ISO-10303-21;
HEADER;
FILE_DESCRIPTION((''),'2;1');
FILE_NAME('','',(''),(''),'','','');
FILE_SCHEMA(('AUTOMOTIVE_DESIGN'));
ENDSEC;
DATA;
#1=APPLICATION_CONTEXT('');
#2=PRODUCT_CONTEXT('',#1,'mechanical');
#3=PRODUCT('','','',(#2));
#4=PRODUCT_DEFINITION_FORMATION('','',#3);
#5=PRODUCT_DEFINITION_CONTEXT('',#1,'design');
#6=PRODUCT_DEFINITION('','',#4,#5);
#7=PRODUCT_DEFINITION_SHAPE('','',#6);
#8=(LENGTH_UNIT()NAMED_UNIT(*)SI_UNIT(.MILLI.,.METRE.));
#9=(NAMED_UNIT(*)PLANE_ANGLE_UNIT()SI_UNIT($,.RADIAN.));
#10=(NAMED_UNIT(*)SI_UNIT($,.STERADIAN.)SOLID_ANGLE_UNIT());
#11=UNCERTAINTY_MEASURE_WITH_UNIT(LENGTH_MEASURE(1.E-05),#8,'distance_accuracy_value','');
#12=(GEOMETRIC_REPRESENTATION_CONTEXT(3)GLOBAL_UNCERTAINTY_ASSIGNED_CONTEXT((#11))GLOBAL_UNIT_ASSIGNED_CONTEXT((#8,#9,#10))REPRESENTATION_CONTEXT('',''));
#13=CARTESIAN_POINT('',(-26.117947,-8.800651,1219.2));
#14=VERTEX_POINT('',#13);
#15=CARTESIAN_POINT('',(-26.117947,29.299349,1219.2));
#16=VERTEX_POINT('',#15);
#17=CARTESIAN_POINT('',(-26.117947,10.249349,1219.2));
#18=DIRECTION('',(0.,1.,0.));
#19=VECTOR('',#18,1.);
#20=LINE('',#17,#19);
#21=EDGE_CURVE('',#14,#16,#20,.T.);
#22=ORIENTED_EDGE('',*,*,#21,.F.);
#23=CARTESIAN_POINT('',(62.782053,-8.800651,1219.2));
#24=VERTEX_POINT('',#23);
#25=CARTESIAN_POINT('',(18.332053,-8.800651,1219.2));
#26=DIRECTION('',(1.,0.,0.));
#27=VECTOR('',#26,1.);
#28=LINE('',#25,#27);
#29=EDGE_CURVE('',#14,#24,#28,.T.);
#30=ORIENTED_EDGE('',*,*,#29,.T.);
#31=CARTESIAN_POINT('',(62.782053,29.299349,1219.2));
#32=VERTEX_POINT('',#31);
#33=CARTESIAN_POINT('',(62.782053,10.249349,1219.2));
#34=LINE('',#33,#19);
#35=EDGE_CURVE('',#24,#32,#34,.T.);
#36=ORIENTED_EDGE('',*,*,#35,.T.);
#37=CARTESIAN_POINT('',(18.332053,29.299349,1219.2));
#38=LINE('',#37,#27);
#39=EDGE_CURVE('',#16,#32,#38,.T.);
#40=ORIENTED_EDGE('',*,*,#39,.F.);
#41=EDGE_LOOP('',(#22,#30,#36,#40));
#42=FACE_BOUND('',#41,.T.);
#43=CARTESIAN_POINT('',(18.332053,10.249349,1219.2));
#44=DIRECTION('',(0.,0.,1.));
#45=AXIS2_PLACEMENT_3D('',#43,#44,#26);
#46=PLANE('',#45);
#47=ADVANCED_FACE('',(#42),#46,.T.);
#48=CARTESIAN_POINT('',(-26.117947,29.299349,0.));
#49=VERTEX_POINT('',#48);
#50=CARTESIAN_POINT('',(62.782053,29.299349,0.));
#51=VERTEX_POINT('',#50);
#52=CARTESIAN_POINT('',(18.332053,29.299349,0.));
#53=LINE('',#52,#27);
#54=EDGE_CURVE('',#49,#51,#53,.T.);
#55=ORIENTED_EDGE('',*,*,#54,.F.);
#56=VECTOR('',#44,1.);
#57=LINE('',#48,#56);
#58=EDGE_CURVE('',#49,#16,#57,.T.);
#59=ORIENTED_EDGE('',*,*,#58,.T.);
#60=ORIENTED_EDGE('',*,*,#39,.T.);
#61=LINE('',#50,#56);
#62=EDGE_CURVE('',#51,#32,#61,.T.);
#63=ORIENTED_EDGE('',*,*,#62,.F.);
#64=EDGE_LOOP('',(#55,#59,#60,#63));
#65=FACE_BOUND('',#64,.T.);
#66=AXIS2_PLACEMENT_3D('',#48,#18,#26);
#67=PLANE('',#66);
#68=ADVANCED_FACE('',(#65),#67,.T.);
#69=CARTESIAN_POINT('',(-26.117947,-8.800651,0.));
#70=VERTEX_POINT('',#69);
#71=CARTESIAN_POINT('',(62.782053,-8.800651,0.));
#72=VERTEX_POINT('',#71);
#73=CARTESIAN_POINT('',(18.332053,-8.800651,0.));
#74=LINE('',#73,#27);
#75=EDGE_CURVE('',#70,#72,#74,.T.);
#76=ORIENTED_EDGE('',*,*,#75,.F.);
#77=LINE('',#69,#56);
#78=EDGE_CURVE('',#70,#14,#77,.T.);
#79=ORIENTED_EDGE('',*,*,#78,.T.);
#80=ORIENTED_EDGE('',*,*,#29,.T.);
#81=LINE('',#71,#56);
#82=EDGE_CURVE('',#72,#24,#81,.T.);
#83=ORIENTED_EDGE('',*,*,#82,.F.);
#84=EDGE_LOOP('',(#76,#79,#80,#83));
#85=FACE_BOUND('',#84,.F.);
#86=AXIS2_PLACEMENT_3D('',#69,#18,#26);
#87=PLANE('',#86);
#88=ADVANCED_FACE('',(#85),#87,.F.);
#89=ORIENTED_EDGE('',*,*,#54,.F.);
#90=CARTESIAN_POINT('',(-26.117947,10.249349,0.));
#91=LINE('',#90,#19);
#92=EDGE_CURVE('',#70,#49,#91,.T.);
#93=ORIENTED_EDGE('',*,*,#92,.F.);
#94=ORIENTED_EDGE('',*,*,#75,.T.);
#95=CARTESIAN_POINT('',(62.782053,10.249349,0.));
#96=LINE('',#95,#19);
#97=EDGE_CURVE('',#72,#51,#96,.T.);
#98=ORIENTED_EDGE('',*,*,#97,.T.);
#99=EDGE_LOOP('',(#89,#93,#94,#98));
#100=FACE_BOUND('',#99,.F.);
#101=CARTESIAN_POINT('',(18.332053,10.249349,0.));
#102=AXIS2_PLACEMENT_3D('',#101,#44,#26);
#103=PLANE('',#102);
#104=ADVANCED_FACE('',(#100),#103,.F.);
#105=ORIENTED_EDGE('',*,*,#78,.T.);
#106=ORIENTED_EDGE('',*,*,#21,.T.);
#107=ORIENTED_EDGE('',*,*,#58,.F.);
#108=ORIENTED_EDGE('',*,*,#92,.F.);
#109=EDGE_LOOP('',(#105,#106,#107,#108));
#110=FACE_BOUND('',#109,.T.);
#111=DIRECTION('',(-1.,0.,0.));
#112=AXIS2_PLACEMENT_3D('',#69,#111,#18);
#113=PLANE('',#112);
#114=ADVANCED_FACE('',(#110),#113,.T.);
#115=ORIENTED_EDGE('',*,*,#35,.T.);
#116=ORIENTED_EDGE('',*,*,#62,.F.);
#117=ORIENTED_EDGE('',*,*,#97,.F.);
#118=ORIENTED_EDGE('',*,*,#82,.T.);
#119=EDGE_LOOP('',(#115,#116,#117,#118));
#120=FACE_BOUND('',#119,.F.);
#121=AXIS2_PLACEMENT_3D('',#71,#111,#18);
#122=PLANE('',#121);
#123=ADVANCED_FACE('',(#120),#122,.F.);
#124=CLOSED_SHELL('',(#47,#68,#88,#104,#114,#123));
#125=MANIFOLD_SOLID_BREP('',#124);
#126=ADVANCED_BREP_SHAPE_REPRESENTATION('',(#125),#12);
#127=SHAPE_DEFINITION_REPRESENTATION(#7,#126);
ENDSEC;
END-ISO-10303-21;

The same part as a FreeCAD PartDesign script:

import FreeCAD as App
import Part
import Sketcher

V = App.Vector
Q = App.Units.Quantity

doc = App.newDocument("Part")
body = doc.addObject("PartDesign::Body", "Body")

sketch1 = body.newObject("Sketcher::SketchObject", "Sketch")
sketch1.AttachmentSupport = (doc.getObject("XY_Plane"), [""])
sketch1.MapMode = "FlatFace"
sketch1.addGeometry(Part.LineSegment(V(-26, 29, 0), V(-26, -9, 0)), False)
sketch1.addGeometry(Part.LineSegment(V(-26, -9, 0), V(63, -9, 0)), False)
sketch1.addGeometry(Part.LineSegment(V(63, -9, 0), V(63, 29, 0)), False)
sketch1.addGeometry(Part.LineSegment(V(63, 29, 0), V(-26, 29, 0)), False)
sketch1.addConstraint(Sketcher.Constraint("Coincident", 0, 2, 1, 1))
sketch1.addConstraint(Sketcher.Constraint("Coincident", 1, 2, 2, 1))
sketch1.addConstraint(Sketcher.Constraint("Coincident", 2, 2, 3, 1))
sketch1.addConstraint(Sketcher.Constraint("Coincident", 3, 2, 0, 1))
sketch1.addConstraint(Sketcher.Constraint("Vertical", 0))
sketch1.addConstraint(Sketcher.Constraint("Horizontal", 1))
sketch1.addConstraint(Sketcher.Constraint("Vertical", 2))
sketch1.addConstraint(Sketcher.Constraint("Horizontal", 3))
sketch1.addConstraint(Sketcher.Constraint("DistanceX", 1, 1, 1, 2, Q("3.5 in")))
sketch1.addConstraint(Sketcher.Constraint("DistanceY", 0, 2, 0, 1, Q("1.5 in")))
sketch1.addConstraint(Sketcher.Constraint("DistanceY", 0, 2, -1, 1, Q("8.800651 mm")))
sketch1.addConstraint(Sketcher.Constraint("DistanceX", 0, 2, -1, 1, Q("26.117947 mm")))
pad1 = body.newObject("PartDesign::Pad", "Pad")
pad1.Profile = sketch1
pad1.Length = Q("48 in")

doc.recompute()
